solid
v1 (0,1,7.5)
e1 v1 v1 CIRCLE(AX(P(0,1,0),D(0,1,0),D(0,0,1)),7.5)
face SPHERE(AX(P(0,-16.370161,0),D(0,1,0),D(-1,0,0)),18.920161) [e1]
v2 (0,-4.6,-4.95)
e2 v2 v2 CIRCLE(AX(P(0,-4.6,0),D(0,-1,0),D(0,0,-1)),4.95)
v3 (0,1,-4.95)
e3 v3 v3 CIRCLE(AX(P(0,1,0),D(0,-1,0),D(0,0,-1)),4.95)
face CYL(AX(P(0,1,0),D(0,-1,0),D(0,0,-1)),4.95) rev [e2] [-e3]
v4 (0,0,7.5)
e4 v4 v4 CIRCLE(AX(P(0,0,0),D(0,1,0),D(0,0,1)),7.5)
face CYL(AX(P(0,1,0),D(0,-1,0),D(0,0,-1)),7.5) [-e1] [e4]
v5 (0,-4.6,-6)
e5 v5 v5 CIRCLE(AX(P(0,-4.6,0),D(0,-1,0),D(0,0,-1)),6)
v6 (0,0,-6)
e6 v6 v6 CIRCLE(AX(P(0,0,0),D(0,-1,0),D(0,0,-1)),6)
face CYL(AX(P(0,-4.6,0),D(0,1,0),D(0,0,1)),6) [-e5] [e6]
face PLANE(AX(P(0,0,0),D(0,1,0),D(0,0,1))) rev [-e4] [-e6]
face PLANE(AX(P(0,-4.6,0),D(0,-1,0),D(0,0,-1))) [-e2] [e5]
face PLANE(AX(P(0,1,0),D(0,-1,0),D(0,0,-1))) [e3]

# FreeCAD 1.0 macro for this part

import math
import FreeCAD as App
import Part
import Sketcher
from FreeCAD import Vector
Q = App.Units.Quantity

doc = App.newDocument("Part")
body = doc.addObject("PartDesign::Body", "Body")

# Sketch on XZ plane
sketch1 = body.newObject("Sketcher::SketchObject", "Sketch")
sketch1.AttachmentSupport = (doc.getObject("XZ_Plane"), [""])
sketch1.MapMode = "FlatFace"
sketch1.addGeometry(Part.Circle(Vector(0, 0, 0), Vector(0, 0, 1), 7.5), False)
sketch1.addConstraint([
    Sketcher.Constraint("Coincident", 0, 3, -1, 1),
    Sketcher.Constraint("Diameter", 0, Q("15 mm")),
])
pad1 = body.newObject("PartDesign::Pad", "Pad")
pad1.Profile = sketch1
pad1.Length = 1
pad1.Reversed = True

# Sketch on XY plane
sketch2 = body.newObject("Sketcher::SketchObject", "Sketch001")
sketch2.AttachmentSupport = (doc.getObject("XY_Plane"), [""])
sketch2.MapMode = "FlatFace"
sketch2.addGeometry([
    Part.LineSegment(Vector(0, 1, 0), Vector(7.5, 1, 0)),
    Part.ArcOfCircle(Part.Circle(Vector(0, -16.370161, 0), Vector(0, 0, 1), 18.920161), math.radians(66.646524), math.radians(90)),
    Part.LineSegment(Vector(0, 2.55, 0), Vector(0, 1, 0)),
], False)
sketch2.addConstraint([
    Sketcher.Constraint("Coincident", 0, 2, 1, 1),
    Sketcher.Constraint("Coincident", 1, 2, 2, 1),
    Sketcher.Constraint("Coincident", 2, 2, 0, 1),
    Sketcher.Constraint("Horizontal", 0),
    Sketcher.Constraint("Vertical", 2),
    Sketcher.Constraint("PointOnObject", 1, 3, -2),
    Sketcher.Constraint("PointOnObject", 1, 2, -2),
    Sketcher.Constraint("DistanceX", 0, 1, 0, 2, Q("7.5 mm")),
    Sketcher.Constraint("DistanceY", -1, 1, 0, 2, Q("1 mm")),
    Sketcher.Constraint("DistanceY", 2, 2, 2, 1, Q("1.55 mm")),
])
revolution = body.newObject("PartDesign::Revolution", "Revolution")
revolution.Profile = sketch2
revolution.ReferenceAxis = (sketch2, ["V_Axis"])
revolution.Angle = 360

# Sketch on XZ plane
sketch3 = body.newObject("Sketcher::SketchObject", "Sketch002")
sketch3.AttachmentSupport = (doc.getObject("XZ_Plane"), [""])
sketch3.MapMode = "FlatFace"
sketch3.addGeometry(Part.Circle(Vector(0, 0, 0), Vector(0, 0, 1), 6), False)
sketch3.addConstraint([
    Sketcher.Constraint("Coincident", 0, 3, -1, 1),
    Sketcher.Constraint("Diameter", 0, Q("12 mm")),
])
pad2 = body.newObject("PartDesign::Pad", "Pad001")
pad2.Profile = sketch3
pad2.Length = 4.6

# Sketch on XZ plane
sketch4 = body.newObject("Sketcher::SketchObject", "Sketch003")
sketch4.AttachmentSupport = (doc.getObject("XZ_Plane"), [""])
sketch4.MapMode = "FlatFace"
sketch4.AttachmentOffset = App.Placement(Vector(0, 0, 4.6), App.Rotation())
sketch4.addGeometry(Part.Circle(Vector(0, 0, 0), Vector(0, 0, 1), 4.95), False)
sketch4.addConstraint([
    Sketcher.Constraint("Coincident", 0, 3, -1, 1),
    Sketcher.Constraint("Diameter", 0, Q("9.9 mm")),
])
pocket1 = body.newObject("PartDesign::Pocket", "Pocket")
pocket1.Profile = sketch4
pocket1.Length = 5.6

doc.recompute()
